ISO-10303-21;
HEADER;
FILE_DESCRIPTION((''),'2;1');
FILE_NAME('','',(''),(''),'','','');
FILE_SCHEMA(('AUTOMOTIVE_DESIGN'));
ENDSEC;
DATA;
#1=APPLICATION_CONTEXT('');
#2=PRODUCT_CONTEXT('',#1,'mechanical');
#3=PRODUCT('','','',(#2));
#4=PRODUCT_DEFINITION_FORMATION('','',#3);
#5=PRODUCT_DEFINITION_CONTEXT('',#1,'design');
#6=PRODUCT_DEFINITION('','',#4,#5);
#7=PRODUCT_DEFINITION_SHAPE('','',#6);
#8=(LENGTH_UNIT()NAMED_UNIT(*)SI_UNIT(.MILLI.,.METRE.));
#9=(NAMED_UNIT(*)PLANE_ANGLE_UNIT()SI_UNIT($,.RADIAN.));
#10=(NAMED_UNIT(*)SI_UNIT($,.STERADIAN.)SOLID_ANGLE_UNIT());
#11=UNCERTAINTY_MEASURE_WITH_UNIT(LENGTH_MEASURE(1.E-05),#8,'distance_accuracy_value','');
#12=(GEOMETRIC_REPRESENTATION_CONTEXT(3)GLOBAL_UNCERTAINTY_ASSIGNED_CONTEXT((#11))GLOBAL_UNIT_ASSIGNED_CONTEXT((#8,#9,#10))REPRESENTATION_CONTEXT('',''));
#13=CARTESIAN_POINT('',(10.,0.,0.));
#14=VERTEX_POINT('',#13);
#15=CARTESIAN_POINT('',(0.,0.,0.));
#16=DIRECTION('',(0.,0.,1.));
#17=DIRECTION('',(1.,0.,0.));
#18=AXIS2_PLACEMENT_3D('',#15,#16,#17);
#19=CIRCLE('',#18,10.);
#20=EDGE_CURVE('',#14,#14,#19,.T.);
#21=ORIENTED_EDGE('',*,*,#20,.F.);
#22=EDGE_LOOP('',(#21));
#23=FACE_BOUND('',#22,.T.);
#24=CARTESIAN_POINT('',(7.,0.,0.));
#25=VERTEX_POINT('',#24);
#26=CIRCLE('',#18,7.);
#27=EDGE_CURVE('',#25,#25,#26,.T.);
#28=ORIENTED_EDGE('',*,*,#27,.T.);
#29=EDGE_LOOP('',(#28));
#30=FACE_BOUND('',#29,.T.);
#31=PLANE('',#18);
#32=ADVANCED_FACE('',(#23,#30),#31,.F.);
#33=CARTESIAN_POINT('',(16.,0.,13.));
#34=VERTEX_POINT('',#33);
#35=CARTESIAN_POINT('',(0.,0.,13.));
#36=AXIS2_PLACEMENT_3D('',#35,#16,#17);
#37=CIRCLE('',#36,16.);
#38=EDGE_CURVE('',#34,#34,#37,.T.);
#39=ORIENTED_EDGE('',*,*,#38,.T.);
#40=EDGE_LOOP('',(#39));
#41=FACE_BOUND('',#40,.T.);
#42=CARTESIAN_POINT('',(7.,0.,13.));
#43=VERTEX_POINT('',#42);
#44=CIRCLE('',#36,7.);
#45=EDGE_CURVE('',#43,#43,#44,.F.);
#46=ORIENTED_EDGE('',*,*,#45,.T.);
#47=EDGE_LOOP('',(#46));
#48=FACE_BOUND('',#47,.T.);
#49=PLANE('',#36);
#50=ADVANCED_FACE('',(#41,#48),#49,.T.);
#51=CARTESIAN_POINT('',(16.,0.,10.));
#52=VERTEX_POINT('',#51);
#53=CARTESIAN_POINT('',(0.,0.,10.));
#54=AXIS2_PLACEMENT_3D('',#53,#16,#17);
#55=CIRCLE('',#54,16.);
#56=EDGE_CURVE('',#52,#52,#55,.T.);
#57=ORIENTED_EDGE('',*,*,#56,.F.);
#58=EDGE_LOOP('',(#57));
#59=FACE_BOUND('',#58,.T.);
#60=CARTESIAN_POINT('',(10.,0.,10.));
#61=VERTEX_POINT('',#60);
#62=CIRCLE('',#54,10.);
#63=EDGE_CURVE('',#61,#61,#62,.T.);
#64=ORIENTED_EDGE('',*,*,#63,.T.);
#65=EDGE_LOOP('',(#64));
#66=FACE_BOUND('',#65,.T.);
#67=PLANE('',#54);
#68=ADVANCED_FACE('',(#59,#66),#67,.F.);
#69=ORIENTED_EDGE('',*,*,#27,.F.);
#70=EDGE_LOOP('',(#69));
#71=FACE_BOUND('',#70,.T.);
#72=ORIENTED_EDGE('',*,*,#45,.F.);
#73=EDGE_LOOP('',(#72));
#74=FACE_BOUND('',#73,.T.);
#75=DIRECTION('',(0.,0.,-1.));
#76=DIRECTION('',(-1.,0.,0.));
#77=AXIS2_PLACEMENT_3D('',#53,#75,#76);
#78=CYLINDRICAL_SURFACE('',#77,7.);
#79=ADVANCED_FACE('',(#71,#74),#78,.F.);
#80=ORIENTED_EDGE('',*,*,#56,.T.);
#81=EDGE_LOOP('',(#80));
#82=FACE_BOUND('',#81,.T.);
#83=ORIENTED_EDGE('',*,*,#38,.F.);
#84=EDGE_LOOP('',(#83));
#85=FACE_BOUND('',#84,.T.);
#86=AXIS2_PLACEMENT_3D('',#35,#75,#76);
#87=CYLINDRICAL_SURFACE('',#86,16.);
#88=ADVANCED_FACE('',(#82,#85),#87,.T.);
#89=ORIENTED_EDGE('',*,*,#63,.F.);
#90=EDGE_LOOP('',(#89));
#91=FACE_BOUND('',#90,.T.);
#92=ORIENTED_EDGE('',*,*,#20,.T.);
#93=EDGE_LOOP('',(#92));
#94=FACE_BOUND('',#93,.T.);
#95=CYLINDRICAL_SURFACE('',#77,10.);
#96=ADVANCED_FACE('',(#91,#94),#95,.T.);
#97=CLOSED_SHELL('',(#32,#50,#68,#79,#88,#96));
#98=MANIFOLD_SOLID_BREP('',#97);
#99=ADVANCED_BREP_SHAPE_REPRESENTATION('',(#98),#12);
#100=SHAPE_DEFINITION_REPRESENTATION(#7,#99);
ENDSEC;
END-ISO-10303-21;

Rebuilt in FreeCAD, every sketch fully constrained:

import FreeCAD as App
import Part
import Sketcher
from FreeCAD import Vector

doc = App.newDocument("Part")
body = doc.addObject("PartDesign::Body", "Body")

# Sketch on XY plane
sketch1 = doc.addObject("Sketcher::SketchObject", "Sketch")
body.addObject(sketch1)
sketch1.AttachmentSupport = (doc.XY_Plane, [""])
sketch1.MapMode = "FlatFace"
sketch1.addGeometry([
    Part.Circle(Vector(0, 0, 0), Vector(0, 0, 1), 10),
    Part.Circle(Vector(0, 0, 0), Vector(0, 0, 1), 7),
], False)
sketch1.addConstraint([
    Sketcher.Constraint("Coincident", 0, 3, -1, 1),
    Sketcher.Constraint("Coincident", 1, 3, -1, 1),
    Sketcher.Constraint("Diameter", 0, 20.0),
    Sketcher.Constraint("Diameter", 1, 14.0),
])
pad1 = doc.addObject("PartDesign::Pad", "Pad")
body.addObject(pad1)
pad1.Profile = sketch1
pad1.Length = 10

# Sketch on XY plane
sketch2 = doc.addObject("Sketcher::SketchObject", "Sketch001")
body.addObject(sketch2)
sketch2.AttachmentSupport = (doc.XY_Plane, [""])
sketch2.MapMode = "FlatFace"
sketch2.AttachmentOffset = App.Placement(Vector(0, 0, 10), App.Rotation())
sketch2.addGeometry([
    Part.Circle(Vector(0, 0, 0), Vector(0, 0, 1), 16),
    Part.Circle(Vector(0, 0, 0), Vector(0, 0, 1), 7),
], False)
sketch2.addConstraint([
    Sketcher.Constraint("Coincident", 0, 3, -1, 1),
    Sketcher.Constraint("Coincident", 1, 3, -1, 1),
    Sketcher.Constraint("Diameter", 0, 32.0),
    Sketcher.Constraint("Diameter", 1, 14.0),
])
pad2 = doc.addObject("PartDesign::Pad", "Pad001")
body.addObject(pad2)
pad2.Profile = sketch2
pad2.Length = 3

doc.recompute()
